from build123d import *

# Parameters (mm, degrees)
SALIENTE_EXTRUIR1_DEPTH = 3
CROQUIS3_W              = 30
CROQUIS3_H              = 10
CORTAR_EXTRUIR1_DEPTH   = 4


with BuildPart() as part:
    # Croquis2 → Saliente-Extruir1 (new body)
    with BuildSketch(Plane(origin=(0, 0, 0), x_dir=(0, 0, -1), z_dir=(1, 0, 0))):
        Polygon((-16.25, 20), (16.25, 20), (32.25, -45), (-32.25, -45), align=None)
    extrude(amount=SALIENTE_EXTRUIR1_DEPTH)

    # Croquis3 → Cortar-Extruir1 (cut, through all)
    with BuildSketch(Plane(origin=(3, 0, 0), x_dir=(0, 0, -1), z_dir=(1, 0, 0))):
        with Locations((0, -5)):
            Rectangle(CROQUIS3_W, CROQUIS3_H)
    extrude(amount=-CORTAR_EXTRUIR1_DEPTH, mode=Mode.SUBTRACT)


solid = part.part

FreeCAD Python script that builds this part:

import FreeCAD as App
import Part
import Sketcher


def add_polygon(sketch, points):
    """Adds a closed chain of lines whose ends are joined by coincident constraints."""
    first, n = sketch.GeometryCount, len(points)
    for a, b in zip(points, points[1:] + points[:1]):
        sketch.addGeometry(Part.LineSegment(App.Vector(*a, 0), App.Vector(*b, 0)), False)
    for i in range(n):
        sketch.addConstraint(Sketcher.Constraint("Coincident", first + i, 2, first + (i + 1) % n, 1))

doc = App.newDocument("Part")
params = doc.addObject("Spreadsheet::Sheet", "Params")
for row, (alias, value) in enumerate([
    ("sketch1_height", "32.5 mm"),
    ("sketch1_height2", "64.5 mm"),
    ("pad1_length", "3 mm"),
    ("sketch2_width", "10 mm"),
    ("sketch2_height", "30 mm"),
], start=1):
    params.set(f"A{row}", alias)
    params.set(f"B{row}", "=" + value)
    params.setAlias(f"B{row}", alias)

body = doc.addObject("PartDesign::Body", "Body")

# Sketch on YZ plane
sketch1 = doc.addObject("Sketcher::SketchObject", "Sketch")
body.addObject(sketch1)
sketch1.AttachmentSupport = (doc.YZ_Plane, [""])
sketch1.MapMode = "FlatFace"
add_polygon(sketch1, [(20, -16), (20, 16), (-45, 32), (-45, -32)])  # lines 0-3
sketch1.addConstraint([
    Sketcher.Constraint("Vertical", 0),
    Sketcher.Constraint("Vertical", 2),
    Sketcher.Constraint("Equal", 1, 3),
    Sketcher.Constraint("DistanceY", 0, 1, 0, 2, 32.5),
    Sketcher.Constraint("DistanceY", 2, 2, 2, 1, 64.5),
    Sketcher.Constraint("DistanceX", -1, 1, 0, 2, 20.0),
    Sketcher.Constraint("DistanceX", 1, 2, -1, 1, 45.0),
    Sketcher.Constraint("DistanceY", -1, 1, 0, 2, 16.25),
])
sketch1.setExpression("Constraints[7]", "Params.sketch1_height")
sketch1.setExpression("Constraints[8]", "Params.sketch1_height2")
pad1 = doc.addObject("PartDesign::Pad", "Pad")
body.addObject(pad1)
pad1.Profile = sketch1
pad1.setExpression("Length", "Params.pad1_length")

# Sketch on YZ plane
sketch2 = doc.addObject("Sketcher::SketchObject", "Sketch001")
body.addObject(sketch2)
sketch2.AttachmentSupport = (doc.YZ_Plane, [""])
sketch2.MapMode = "FlatFace"
sketch2.AttachmentOffset = App.Placement(App.Vector(0, 0, 3), App.Rotation())
add_polygon(sketch2, [(0, 15), (-10, 15), (-10, -15), (0, -15)])  # lines 0-3
sketch2.addConstraint([
    Sketcher.Constraint("Horizontal", 0),
    Sketcher.Constraint("Vertical", 1),
    Sketcher.Constraint("Horizontal", 2),
    Sketcher.Constraint("Vertical", 3),
    Sketcher.Constraint("Symmetric", 2, 2, 3, 2, -1, 1),
    Sketcher.Constraint("DistanceX", 0, 2, 0, 1, 10.0),
    Sketcher.Constraint("DistanceY", 1, 2, 1, 1, 30.0),
])
sketch2.setExpression("Constraints[9]", "Params.sketch2_width")
sketch2.setExpression("Constraints[10]", "Params.sketch2_height")
pocket1 = doc.addObject("PartDesign::Pocket", "Pocket")
body.addObject(pocket1)
pocket1.Profile = sketch2
pocket1.Type = "ThroughAll"

doc.recompute()
